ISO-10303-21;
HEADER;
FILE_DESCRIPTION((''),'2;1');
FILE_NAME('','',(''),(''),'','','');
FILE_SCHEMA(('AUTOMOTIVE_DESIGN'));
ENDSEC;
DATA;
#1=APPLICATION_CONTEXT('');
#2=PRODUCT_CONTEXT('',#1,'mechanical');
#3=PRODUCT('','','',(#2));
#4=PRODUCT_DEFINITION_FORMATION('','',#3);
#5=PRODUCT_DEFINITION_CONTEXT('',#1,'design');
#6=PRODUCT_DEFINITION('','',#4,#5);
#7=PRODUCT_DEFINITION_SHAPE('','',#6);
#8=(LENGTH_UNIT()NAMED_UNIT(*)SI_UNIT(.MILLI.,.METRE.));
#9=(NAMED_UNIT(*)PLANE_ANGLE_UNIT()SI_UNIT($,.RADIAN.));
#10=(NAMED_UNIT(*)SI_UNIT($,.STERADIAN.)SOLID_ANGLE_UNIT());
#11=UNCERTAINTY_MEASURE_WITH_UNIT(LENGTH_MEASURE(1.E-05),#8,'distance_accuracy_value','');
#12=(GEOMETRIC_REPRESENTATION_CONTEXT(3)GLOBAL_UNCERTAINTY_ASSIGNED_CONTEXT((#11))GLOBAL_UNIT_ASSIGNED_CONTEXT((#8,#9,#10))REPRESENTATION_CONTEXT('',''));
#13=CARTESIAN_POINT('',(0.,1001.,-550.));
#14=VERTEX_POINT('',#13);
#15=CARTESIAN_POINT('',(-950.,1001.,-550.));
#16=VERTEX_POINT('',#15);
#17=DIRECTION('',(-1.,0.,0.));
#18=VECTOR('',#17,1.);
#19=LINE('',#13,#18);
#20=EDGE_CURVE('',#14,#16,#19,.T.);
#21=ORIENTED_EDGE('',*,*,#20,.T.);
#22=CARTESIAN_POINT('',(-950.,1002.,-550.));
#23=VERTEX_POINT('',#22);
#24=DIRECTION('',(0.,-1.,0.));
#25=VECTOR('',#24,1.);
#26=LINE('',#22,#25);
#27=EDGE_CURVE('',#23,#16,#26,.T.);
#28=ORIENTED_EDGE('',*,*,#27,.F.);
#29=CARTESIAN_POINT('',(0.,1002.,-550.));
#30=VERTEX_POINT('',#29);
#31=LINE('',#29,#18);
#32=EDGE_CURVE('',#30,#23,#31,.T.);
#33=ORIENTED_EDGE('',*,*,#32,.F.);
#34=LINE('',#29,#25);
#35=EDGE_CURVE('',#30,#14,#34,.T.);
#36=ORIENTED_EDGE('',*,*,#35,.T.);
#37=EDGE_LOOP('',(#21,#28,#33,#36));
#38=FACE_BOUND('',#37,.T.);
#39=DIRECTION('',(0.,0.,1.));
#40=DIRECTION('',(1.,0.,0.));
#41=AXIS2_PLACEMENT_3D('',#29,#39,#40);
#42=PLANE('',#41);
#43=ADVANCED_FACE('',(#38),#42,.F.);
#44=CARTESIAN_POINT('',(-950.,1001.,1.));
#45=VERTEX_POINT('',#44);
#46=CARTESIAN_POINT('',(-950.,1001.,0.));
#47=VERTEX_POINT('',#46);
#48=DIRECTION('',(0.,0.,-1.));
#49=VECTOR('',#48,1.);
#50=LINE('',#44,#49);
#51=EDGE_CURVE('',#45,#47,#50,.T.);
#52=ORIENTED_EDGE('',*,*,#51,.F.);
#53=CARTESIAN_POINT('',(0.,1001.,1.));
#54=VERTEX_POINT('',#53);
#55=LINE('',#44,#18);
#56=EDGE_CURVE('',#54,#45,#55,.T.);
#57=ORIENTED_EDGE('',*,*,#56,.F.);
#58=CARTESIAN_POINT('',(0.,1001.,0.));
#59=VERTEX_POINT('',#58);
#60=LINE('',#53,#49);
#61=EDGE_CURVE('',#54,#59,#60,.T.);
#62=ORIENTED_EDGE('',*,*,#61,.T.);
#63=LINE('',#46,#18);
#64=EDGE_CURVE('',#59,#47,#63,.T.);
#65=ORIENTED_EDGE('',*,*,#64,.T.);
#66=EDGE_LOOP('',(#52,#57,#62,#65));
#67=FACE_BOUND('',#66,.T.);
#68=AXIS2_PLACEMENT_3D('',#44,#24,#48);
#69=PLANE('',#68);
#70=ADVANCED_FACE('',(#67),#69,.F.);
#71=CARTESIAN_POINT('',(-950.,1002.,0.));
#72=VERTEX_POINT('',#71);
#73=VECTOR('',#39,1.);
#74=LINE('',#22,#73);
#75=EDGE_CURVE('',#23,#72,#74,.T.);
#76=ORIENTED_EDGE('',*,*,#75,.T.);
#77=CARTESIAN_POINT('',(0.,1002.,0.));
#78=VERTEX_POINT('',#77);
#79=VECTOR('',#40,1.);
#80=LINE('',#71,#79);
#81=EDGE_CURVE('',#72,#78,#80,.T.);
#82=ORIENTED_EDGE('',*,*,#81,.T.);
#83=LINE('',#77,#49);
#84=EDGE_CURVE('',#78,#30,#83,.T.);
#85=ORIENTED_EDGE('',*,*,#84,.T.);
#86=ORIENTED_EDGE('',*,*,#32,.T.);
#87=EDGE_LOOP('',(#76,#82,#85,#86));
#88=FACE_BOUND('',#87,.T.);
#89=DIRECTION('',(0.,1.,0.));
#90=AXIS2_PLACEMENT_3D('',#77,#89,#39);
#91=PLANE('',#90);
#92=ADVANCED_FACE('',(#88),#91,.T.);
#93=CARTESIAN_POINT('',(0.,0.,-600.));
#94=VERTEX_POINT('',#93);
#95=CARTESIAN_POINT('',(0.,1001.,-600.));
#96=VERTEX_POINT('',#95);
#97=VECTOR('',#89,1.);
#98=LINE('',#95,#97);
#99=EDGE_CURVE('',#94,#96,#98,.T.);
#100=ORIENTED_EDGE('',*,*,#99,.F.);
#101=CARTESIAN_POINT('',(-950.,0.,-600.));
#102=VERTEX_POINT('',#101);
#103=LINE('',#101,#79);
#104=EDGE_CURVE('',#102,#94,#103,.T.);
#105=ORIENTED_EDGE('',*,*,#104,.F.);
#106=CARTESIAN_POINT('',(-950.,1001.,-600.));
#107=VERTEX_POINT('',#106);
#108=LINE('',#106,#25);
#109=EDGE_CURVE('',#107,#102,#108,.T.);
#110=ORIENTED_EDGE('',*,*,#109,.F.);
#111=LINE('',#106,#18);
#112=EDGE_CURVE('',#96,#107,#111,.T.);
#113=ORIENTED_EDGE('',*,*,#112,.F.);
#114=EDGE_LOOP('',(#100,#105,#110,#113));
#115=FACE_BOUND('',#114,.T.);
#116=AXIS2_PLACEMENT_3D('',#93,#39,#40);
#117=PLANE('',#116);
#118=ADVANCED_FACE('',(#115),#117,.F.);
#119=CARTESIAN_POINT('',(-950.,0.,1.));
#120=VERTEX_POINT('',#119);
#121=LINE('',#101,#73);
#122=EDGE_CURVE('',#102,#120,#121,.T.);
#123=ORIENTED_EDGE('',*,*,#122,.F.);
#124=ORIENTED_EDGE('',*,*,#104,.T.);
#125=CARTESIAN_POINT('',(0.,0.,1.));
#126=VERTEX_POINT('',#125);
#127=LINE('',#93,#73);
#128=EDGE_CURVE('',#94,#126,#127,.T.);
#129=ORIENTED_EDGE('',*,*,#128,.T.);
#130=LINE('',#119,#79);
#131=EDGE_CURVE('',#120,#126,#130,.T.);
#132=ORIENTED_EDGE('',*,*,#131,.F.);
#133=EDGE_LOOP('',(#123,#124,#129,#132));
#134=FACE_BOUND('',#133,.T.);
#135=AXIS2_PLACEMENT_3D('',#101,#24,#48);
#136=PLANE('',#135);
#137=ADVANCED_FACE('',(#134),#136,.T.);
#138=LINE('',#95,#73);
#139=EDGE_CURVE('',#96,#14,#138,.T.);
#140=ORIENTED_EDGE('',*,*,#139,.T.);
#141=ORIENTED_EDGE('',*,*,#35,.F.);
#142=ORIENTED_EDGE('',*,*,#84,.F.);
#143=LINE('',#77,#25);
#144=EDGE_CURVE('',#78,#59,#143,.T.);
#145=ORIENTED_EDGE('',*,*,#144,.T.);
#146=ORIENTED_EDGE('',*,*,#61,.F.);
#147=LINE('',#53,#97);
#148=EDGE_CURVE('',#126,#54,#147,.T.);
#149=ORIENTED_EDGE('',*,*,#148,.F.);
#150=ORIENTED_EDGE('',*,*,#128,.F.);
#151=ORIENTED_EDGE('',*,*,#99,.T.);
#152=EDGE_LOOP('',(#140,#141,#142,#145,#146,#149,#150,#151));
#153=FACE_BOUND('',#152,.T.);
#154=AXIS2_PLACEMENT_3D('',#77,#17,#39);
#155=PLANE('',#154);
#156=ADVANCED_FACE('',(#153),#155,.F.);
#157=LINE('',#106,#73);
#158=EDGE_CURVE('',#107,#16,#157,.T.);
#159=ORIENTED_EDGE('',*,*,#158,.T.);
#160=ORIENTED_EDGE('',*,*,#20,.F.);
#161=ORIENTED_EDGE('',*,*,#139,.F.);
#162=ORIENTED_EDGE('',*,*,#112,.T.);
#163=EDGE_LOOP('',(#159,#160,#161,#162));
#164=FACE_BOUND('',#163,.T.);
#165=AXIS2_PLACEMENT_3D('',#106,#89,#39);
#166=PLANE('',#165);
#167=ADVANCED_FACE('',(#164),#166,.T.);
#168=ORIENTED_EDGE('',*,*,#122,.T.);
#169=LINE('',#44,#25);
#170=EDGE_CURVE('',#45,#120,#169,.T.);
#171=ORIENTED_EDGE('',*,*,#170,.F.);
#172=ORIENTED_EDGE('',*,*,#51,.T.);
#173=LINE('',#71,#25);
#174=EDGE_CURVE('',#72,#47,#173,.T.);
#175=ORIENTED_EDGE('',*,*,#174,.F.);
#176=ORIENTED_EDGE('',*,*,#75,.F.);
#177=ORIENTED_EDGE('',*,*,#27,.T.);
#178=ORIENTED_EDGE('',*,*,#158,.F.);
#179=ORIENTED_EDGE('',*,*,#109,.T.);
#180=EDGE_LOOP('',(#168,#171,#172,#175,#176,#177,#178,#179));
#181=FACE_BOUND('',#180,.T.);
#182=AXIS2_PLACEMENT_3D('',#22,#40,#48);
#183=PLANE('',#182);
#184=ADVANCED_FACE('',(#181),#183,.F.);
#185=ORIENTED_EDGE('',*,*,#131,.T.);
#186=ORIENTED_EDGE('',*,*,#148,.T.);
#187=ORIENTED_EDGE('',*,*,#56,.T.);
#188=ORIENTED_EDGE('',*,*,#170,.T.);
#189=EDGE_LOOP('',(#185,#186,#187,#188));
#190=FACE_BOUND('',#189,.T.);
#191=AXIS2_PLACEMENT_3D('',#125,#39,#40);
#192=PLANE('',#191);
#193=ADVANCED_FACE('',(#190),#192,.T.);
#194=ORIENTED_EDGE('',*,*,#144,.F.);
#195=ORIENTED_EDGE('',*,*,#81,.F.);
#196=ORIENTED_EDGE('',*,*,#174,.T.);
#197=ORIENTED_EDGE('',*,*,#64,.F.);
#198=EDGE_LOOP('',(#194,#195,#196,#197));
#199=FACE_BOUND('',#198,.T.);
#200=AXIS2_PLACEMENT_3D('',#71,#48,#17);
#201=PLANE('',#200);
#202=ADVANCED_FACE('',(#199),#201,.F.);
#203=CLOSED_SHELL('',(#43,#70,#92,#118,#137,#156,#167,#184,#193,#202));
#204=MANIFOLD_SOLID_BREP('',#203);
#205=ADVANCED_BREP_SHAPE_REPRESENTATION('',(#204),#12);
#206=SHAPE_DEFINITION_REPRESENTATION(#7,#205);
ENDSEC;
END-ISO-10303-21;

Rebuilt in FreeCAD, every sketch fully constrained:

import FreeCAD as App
import Part
import Sketcher
from FreeCAD import Vector
Q = App.Units.Quantity


def add_polygon(sketch, points):
    """Adds a closed chain of lines whose ends are joined by coincident constraints."""
    first, n = sketch.GeometryCount, len(points)
    for a, b in zip(points, points[1:] + points[:1]):
        sketch.addGeometry(Part.LineSegment(App.Vector(*a, 0), App.Vector(*b, 0)), False)
    for i in range(n):
        sketch.addConstraint(Sketcher.Constraint("Coincident", first + i, 2, first + (i + 1) % n, 1))

doc = App.newDocument("Part")
params = doc.addObject("Spreadsheet::Sheet", "Params")
for row, (alias, value) in enumerate([
    ("sketch1_width", "950 mm"),
    ("sketch1_height", "550 mm"),
    ("pad1_length", "1 mm"),
    ("sketch2_width", "950 mm"),
    ("sketch2_height", "1001 mm"),
    ("pad2_length", "1 mm"),
    ("sketch3_width", "950 mm"),
    ("sketch3_height", "550 mm"),
    ("pad3_length", "1 mm"),
    ("sketch4_width", "950 mm"),
    ("sketch4_height", "1001 mm"),
    ("pad4_length", "600 mm"),
], start=1):
    params.set(f"A{row}", alias)
    params.set(f"B{row}", "=" + value)
    params.setAlias(f"B{row}", alias)

body = doc.addObject("PartDesign::Body", "Body")

# Sketch on XZ plane
sketch1 = body.newObject("Sketcher::SketchObject", "Sketch")
sketch1.AttachmentSupport = (doc.getObject("XZ_Plane"), [""])
sketch1.MapMode = "FlatFace"
add_polygon(sketch1, [(-950, -550), (-950, 0), (0, 0), (0, -550)])  # lines 0-3
sketch1.addConstraint(Sketcher.Constraint("Vertical", 0))
sketch1.addConstraint(Sketcher.Constraint("Horizontal", 1))
sketch1.addConstraint(Sketcher.Constraint("Vertical", 2))
sketch1.addConstraint(Sketcher.Constraint("Horizontal", 3))
sketch1.addConstraint(Sketcher.Constraint("Coincident", 1, 2, -1, 1))
sketch1.addConstraint(Sketcher.Constraint("DistanceX", 1, 1, 1, 2, Q("950 mm")))
sketch1.addConstraint(Sketcher.Constraint("DistanceY", 0, 1, 0, 2, Q("550 mm")))
sketch1.setExpression("Constraints[9]", "Params.sketch1_width")
sketch1.setExpression("Constraints[10]", "Params.sketch1_height")
pad1 = body.newObject("PartDesign::Pad", "Pad")
pad1.Profile = sketch1
pad1.setExpression("Length", "Params.pad1_length")
pad1.Reversed = True

# Sketch on XY plane
sketch2 = body.newObject("Sketcher::SketchObject", "Sketch001")
sketch2.AttachmentSupport = (doc.getObject("XY_Plane"), [""])
sketch2.MapMode = "FlatFace"
add_polygon(sketch2, [(-950, 1001), (-950, 0), (0, 0), (0, 1001)])  # lines 0-3
sketch2.addConstraint(Sketcher.Constraint("Vertical", 0))
sketch2.addConstraint(Sketcher.Constraint("Horizontal", 1))
sketch2.addConstraint(Sketcher.Constraint("Vertical", 2))
sketch2.addConstraint(Sketcher.Constraint("Horizontal", 3))
sketch2.addConstraint(Sketcher.Constraint("Coincident", 1, 2, -1, 1))
sketch2.addConstraint(Sketcher.Constraint("DistanceX", 1, 1, 1, 2, Q("950 mm")))
sketch2.addConstraint(Sketcher.Constraint("DistanceY", 0, 2, 0, 1, Q("1001 mm")))
sketch2.setExpression("Constraints[9]", "Params.sketch2_width")
sketch2.setExpression("Constraints[10]", "Params.sketch2_height")
pad2 = body.newObject("PartDesign::Pad", "Pad001")
pad2.Profile = sketch2
pad2.setExpression("Length", "Params.pad2_length")
body2 = doc.addObject("PartDesign::Body", "Body001")

# Sketch on XZ plane
sketch3 = body2.newObject("Sketcher::SketchObject", "Sketch002")
sketch3.AttachmentSupport = (doc.getObject("XZ_Plane001"), [""])
sketch3.MapMode = "FlatFace"
sketch3.AttachmentOffset = App.Placement(Vector(0, 0, -1001), App.Rotation())
add_polygon(sketch3, [(-950, -550), (-950, 0), (0, 0), (0, -550)])  # lines 0-3
sketch3.addConstraint(Sketcher.Constraint("Vertical", 0))
sketch3.addConstraint(Sketcher.Constraint("Horizontal", 1))
sketch3.addConstraint(Sketcher.Constraint("Vertical", 2))
sketch3.addConstraint(Sketcher.Constraint("Horizontal", 3))
sketch3.addConstraint(Sketcher.Constraint("Coincident", 1, 2, -1, 1))
sketch3.addConstraint(Sketcher.Constraint("DistanceX", 1, 1, 1, 2, Q("950 mm")))
sketch3.addConstraint(Sketcher.Constraint("DistanceY", 0, 1, 0, 2, Q("550 mm")))
sketch3.setExpression("Constraints[9]", "Params.sketch3_width")
sketch3.setExpression("Constraints[10]", "Params.sketch3_height")
pad3 = body2.newObject("PartDesign::Pad", "Pad002")
pad3.Profile = sketch3
pad3.setExpression("Length", "Params.pad3_length")
pad3.Reversed = True
body.AllowCompound = True
doc.recompute()

boolean = body.newObject("PartDesign::Boolean", "Boolean")
boolean.Type = "Fuse"
boolean.addObjects([body2])

# Sketch on XY plane
sketch4 = body.newObject("Sketcher::SketchObject", "Sketch003")
sketch4.AttachmentSupport = (doc.getObject("XY_Plane"), [""])
sketch4.MapMode = "FlatFace"
add_polygon(sketch4, [(-950, 1001), (-950, 0), (0, 0), (0, 1001)])  # lines 0-3
sketch4.addConstraint(Sketcher.Constraint("Vertical", 0))
sketch4.addConstraint(Sketcher.Constraint("Horizontal", 1))
sketch4.addConstraint(Sketcher.Constraint("Vertical", 2))
sketch4.addConstraint(Sketcher.Constraint("Horizontal", 3))
sketch4.addConstraint(Sketcher.Constraint("Coincident", 1, 2, -1, 1))
sketch4.addConstraint(Sketcher.Constraint("DistanceX", 1, 1, 1, 2, Q("950 mm")))
sketch4.addConstraint(Sketcher.Constraint("DistanceY", 0, 2, 0, 1, Q("1001 mm")))
sketch4.setExpression("Constraints[9]", "Params.sketch4_width")
sketch4.setExpression("Constraints[10]", "Params.sketch4_height")
pad4 = body.newObject("PartDesign::Pad", "Pad003")
pad4.Profile = sketch4
pad4.setExpression("Length", "Params.pad4_length")
pad4.Reversed = True

doc.recompute()
